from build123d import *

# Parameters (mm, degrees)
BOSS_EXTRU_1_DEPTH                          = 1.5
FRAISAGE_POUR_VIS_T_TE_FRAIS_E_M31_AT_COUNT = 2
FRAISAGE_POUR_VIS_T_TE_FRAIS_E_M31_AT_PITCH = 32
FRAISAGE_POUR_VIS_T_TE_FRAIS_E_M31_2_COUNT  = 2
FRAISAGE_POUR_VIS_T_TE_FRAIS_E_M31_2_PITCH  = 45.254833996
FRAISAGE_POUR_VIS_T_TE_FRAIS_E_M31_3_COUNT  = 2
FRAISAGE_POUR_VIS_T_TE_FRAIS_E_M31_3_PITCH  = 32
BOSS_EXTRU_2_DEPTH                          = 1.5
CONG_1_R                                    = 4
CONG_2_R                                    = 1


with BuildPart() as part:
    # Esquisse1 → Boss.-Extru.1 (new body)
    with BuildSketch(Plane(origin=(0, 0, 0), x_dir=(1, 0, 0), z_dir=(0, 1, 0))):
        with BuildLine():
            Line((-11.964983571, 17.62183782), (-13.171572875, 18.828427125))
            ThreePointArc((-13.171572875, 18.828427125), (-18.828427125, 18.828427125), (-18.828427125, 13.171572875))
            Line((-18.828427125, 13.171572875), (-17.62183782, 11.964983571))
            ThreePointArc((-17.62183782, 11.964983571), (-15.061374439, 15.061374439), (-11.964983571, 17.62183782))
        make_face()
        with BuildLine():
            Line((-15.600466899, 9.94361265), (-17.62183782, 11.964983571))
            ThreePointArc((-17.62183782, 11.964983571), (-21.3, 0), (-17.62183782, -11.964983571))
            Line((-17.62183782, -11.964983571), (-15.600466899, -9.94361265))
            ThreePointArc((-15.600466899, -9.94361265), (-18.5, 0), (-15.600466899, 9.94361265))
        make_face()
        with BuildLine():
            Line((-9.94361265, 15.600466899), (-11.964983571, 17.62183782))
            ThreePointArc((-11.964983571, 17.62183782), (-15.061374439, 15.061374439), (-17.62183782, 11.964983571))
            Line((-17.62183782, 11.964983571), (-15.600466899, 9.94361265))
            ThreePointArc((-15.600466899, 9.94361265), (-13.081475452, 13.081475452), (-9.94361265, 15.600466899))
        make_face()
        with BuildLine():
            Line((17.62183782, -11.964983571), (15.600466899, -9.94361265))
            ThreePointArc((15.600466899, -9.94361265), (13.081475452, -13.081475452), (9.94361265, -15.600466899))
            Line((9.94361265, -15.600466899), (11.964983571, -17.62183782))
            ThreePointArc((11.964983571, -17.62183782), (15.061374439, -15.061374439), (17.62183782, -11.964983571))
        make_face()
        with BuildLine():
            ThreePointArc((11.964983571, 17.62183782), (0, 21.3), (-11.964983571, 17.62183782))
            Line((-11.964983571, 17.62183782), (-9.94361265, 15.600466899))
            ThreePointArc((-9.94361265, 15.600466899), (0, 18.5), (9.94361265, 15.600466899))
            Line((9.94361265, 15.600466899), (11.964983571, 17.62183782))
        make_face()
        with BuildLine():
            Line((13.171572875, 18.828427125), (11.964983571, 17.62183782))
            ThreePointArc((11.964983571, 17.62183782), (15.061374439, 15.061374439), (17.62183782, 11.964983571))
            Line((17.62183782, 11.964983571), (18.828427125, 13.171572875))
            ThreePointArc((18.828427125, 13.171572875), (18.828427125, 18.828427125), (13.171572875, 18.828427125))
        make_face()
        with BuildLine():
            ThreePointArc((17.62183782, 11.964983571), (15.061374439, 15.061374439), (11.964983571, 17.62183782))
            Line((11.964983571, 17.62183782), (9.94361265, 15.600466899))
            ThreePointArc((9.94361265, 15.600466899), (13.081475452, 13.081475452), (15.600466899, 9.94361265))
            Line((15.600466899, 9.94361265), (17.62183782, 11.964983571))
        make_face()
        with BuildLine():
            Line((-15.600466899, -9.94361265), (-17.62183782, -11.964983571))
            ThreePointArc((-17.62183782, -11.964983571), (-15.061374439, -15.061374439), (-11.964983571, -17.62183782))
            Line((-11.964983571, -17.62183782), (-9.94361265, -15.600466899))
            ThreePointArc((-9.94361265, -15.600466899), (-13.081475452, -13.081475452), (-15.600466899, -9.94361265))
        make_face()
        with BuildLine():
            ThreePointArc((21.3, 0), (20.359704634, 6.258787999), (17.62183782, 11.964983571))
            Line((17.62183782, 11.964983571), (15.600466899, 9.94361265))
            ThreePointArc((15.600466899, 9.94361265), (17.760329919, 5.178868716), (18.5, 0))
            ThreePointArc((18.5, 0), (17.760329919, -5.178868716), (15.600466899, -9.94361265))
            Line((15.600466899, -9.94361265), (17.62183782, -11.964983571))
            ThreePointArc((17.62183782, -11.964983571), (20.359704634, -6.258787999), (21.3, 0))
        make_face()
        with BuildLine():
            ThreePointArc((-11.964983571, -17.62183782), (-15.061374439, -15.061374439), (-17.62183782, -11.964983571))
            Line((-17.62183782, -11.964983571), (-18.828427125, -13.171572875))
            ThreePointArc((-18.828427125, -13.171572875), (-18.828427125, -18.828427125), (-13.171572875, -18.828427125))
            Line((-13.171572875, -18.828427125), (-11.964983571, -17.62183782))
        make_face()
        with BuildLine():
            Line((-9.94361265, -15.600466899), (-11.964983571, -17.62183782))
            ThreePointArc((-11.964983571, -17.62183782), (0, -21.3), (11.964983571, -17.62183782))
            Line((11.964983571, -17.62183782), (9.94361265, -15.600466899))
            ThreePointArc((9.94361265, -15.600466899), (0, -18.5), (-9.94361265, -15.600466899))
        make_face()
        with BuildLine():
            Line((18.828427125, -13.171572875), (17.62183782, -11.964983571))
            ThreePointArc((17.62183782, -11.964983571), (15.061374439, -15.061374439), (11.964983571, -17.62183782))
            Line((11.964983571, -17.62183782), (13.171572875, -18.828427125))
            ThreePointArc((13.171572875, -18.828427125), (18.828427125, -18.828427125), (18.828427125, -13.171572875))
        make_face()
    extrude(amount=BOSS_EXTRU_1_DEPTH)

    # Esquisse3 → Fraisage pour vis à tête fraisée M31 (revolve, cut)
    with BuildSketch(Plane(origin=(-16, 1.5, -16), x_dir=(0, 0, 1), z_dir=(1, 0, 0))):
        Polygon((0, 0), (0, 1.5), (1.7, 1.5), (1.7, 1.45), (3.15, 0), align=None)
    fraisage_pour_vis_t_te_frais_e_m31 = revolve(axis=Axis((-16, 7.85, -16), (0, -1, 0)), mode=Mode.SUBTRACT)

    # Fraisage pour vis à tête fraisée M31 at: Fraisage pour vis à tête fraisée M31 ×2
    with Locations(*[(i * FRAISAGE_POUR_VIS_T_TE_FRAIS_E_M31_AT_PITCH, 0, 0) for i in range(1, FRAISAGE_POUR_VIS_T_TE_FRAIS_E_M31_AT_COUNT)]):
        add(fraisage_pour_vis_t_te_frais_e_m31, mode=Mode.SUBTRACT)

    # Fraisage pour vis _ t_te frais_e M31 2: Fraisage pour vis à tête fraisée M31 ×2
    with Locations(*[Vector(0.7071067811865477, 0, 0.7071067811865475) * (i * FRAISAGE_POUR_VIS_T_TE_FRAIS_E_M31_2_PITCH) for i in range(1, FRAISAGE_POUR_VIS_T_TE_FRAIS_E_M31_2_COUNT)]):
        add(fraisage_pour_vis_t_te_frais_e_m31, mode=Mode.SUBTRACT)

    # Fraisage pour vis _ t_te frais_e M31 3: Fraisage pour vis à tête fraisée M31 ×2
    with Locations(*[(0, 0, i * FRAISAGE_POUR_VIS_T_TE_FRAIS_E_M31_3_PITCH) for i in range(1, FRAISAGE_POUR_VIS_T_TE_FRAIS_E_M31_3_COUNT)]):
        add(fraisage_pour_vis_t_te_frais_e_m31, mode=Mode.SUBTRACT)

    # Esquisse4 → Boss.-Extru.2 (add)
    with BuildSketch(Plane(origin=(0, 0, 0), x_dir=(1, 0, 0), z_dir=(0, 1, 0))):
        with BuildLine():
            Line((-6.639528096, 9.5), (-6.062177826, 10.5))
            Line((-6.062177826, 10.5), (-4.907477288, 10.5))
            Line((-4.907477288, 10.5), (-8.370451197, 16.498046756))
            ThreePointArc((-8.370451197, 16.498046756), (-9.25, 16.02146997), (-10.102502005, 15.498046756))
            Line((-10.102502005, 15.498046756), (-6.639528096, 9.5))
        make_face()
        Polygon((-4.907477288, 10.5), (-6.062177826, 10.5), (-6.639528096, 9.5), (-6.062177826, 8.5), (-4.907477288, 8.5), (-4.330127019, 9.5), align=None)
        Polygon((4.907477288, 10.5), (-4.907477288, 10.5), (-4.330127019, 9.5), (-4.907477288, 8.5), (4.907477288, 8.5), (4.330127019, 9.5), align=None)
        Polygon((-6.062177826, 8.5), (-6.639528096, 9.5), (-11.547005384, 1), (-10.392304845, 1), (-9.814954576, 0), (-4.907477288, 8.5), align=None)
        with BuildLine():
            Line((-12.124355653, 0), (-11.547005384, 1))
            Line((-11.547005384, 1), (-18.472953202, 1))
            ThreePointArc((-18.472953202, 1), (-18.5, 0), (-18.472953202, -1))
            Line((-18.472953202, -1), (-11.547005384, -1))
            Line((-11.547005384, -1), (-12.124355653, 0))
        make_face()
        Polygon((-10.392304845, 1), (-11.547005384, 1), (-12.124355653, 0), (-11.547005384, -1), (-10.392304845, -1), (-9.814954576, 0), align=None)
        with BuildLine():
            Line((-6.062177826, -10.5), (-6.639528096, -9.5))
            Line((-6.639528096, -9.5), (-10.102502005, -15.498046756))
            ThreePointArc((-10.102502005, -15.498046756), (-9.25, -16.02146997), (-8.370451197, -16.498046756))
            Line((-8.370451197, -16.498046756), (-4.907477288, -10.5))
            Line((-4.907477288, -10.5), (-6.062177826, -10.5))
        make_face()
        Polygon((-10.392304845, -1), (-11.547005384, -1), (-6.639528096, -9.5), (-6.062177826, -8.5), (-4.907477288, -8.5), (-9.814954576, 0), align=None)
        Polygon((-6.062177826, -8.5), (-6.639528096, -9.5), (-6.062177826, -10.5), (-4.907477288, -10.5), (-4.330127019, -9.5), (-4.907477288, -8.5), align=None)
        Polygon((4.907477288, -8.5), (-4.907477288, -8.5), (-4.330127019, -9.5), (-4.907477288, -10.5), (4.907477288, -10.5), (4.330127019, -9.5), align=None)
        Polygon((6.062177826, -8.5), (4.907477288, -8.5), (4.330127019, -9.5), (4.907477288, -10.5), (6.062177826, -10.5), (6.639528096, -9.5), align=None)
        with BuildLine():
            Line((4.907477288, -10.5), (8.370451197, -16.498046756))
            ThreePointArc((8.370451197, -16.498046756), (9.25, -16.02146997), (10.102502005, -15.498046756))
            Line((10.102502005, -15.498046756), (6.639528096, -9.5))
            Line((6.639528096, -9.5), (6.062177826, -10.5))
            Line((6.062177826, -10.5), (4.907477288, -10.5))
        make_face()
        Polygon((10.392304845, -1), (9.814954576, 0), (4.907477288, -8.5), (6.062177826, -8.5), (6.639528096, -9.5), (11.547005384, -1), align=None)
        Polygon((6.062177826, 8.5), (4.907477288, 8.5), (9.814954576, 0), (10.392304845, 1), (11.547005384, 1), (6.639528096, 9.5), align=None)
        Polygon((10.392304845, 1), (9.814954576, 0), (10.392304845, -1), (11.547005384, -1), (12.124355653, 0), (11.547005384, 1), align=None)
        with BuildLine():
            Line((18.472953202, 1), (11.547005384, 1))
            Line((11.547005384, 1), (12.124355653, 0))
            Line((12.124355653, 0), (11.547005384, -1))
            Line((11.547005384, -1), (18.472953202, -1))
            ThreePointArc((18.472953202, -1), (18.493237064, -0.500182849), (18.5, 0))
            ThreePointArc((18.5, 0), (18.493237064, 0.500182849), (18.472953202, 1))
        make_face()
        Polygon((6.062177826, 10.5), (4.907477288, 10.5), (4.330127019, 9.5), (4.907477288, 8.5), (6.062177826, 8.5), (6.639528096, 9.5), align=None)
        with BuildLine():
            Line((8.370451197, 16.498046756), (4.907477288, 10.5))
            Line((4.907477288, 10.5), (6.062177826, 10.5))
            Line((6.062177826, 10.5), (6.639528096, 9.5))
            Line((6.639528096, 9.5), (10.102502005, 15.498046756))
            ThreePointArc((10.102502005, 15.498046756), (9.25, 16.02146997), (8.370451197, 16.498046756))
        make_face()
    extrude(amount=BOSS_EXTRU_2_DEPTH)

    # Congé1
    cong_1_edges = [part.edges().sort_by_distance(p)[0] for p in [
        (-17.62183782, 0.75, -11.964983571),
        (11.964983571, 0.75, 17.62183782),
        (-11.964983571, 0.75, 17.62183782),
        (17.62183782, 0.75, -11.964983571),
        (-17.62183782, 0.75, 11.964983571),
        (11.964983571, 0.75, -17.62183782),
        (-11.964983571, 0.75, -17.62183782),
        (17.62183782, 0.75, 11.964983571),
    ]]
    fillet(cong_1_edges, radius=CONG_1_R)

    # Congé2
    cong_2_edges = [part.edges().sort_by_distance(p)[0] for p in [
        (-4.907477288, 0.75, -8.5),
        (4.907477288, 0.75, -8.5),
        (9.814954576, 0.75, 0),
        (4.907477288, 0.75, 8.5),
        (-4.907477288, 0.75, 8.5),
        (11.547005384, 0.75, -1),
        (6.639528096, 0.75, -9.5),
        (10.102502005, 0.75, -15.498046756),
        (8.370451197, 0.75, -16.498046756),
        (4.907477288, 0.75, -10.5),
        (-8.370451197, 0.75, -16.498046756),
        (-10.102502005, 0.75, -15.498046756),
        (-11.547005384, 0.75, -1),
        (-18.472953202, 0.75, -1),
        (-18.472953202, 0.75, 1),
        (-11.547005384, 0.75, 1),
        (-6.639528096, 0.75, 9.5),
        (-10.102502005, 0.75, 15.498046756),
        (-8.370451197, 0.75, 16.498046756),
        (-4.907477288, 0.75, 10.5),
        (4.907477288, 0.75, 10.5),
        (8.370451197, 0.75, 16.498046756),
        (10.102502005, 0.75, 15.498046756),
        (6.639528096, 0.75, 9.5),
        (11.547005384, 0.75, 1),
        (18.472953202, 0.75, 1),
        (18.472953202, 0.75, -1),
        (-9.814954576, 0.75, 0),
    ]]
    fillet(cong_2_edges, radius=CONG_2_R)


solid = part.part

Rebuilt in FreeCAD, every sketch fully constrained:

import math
import FreeCAD as App
import Part
import Sketcher

V = App.Vector
Q = App.Units.Quantity


def edges_at(feature, points):
    """Names of the edges that pass closest to the given points."""
    edges = feature.Shape.Edges
    near = lambda p: min(range(len(edges)), key=lambda i: edges[i].distToShape(Part.Vertex(*p))[0])
    return sorted({f"Edge{near(p) + 1}" for p in points})

doc = App.newDocument("Part")
body = doc.addObject("PartDesign::Body", "Body")

sketch1 = body.newObject("Sketcher::SketchObject", "Sketch")
sketch1.AttachmentSupport = (doc.getObject("XZ_Plane"), [""])
sketch1.MapMode = "FlatFace"
sketch1.addGeometry(Part.LineSegment(V(17.6, -12, 0), V(18.8, -13.2, 0)), False)
sketch1.addGeometry(Part.ArcOfCircle(Part.Circle(V(16, -16, 0), V(0, 0, 1), 4), math.radians(-135), math.radians(45)), False)
sketch1.addGeometry(Part.LineSegment(V(13.2, -18.8, 0), V(12, -17.6, 0)), False)
sketch1.addGeometry(Part.ArcOfCircle(Part.Circle(V(0, 0, 0), V(0, 0, 1), 21.3), math.radians(-124), math.radians(-56)), False)
sketch1.addGeometry(Part.LineSegment(V(-12, -17.6, 0), V(-13.2, -18.8, 0)), False)
sketch1.addGeometry(Part.ArcOfCircle(Part.Circle(V(-16, -16, 0), V(0, 0, 1), 4), math.radians(135), math.radians(315)), False)
sketch1.addGeometry(Part.LineSegment(V(-18.8, -13.2, 0), V(-17.6, -12, 0)), False)
sketch1.addGeometry(Part.ArcOfCircle(Part.Circle(V(0, 0, 0), V(0, 0, 1), 21.3), math.radians(146), math.radians(214)), False)
sketch1.addGeometry(Part.LineSegment(V(-17.6, 12, 0), V(-18.8, 13.2, 0)), False)
sketch1.addGeometry(Part.ArcOfCircle(Part.Circle(V(-16, 16, 0), V(0, 0, 1), 4), math.radians(45), math.radians(225)), False)
sketch1.addGeometry(Part.LineSegment(V(-13.2, 18.8, 0), V(-12, 17.6, 0)), False)
sketch1.addGeometry(Part.ArcOfCircle(Part.Circle(V(0, 0, 0), V(0, 0, 1), 21.3), math.radians(56), math.radians(124)), False)
sketch1.addGeometry(Part.LineSegment(V(12, 17.6, 0), V(13.2, 18.8, 0)), False)
sketch1.addGeometry(Part.ArcOfCircle(Part.Circle(V(16, 16, 0), V(0, 0, 1), 4), math.radians(-45), math.radians(135)), False)
sketch1.addGeometry(Part.LineSegment(V(18.8, 13.2, 0), V(17.6, 12, 0)), False)
sketch1.addGeometry(Part.ArcOfCircle(Part.Circle(V(0, 0, 0), V(0, 0, 1), 21.3), math.radians(0), math.radians(34)), False)
sketch1.addGeometry(Part.ArcOfCircle(Part.Circle(V(0, 0, 0), V(0, 0, 1), 21.3), math.radians(-34), math.radians(0)), False)
sketch1.addGeometry(Part.ArcOfCircle(Part.Circle(V(0, 0, 0), V(0, 0, 1), 18.5), math.radians(0), math.radians(33)), False)
sketch1.addGeometry(Part.ArcOfCircle(Part.Circle(V(0, 0, 0), V(0, 0, 1), 18.5), math.radians(33), math.radians(57)), False)
sketch1.addGeometry(Part.ArcOfCircle(Part.Circle(V(0, 0, 0), V(0, 0, 1), 18.5), math.radians(57), math.radians(123)), False)
sketch1.addGeometry(Part.ArcOfCircle(Part.Circle(V(0, 0, 0), V(0, 0, 1), 18.5), math.radians(123), math.radians(147)), False)
sketch1.addGeometry(Part.ArcOfCircle(Part.Circle(V(0, 0, 0), V(0, 0, 1), 18.5), math.radians(147), math.radians(213)), False)
sketch1.addGeometry(Part.ArcOfCircle(Part.Circle(V(0, 0, 0), V(0, 0, 1), 18.5), math.radians(-147), math.radians(-123)), False)
sketch1.addGeometry(Part.ArcOfCircle(Part.Circle(V(0, 0, 0), V(0, 0, 1), 18.5), math.radians(-123), math.radians(-57)), False)
sketch1.addGeometry(Part.ArcOfCircle(Part.Circle(V(0, 0, 0), V(0, 0, 1), 18.5), math.radians(-57), math.radians(-33)), False)
sketch1.addGeometry(Part.ArcOfCircle(Part.Circle(V(0, 0, 0), V(0, 0, 1), 18.5), math.radians(-33), math.radians(0)), False)
sketch1.addConstraint(Sketcher.Constraint("Tangent", 0, 2, 1, 2))
sketch1.addConstraint(Sketcher.Constraint("Tangent", 1, 1, 2, 1))
sketch1.addConstraint(Sketcher.Constraint("Coincident", 2, 2, 3, 2))
sketch1.addConstraint(Sketcher.Constraint("Coincident", 3, 1, 4, 1))
sketch1.addConstraint(Sketcher.Constraint("Tangent", 4, 2, 5, 2))
sketch1.addConstraint(Sketcher.Constraint("Tangent", 5, 1, 6, 1))
sketch1.addConstraint(Sketcher.Constraint("Coincident", 6, 2, 7, 2))
sketch1.addConstraint(Sketcher.Constraint("Coincident", 7, 1, 8, 1))
sketch1.addConstraint(Sketcher.Constraint("Tangent", 8, 2, 9, 2))
sketch1.addConstraint(Sketcher.Constraint("Tangent", 9, 1, 10, 1))
sketch1.addConstraint(Sketcher.Constraint("Coincident", 10, 2, 11, 2))
sketch1.addConstraint(Sketcher.Constraint("Coincident", 11, 1, 12, 1))
sketch1.addConstraint(Sketcher.Constraint("Tangent", 12, 2, 13, 2))
sketch1.addConstraint(Sketcher.Constraint("Tangent", 13, 1, 14, 1))
sketch1.addConstraint(Sketcher.Constraint("Coincident", 14, 2, 15, 2))
sketch1.addConstraint(Sketcher.Constraint("Tangent", 15, 1, 16, 2))
sketch1.addConstraint(Sketcher.Constraint("Coincident", 16, 1, 0, 1))
sketch1.addConstraint(Sketcher.Constraint("Tangent", 17, 2, 18, 1))
sketch1.addConstraint(Sketcher.Constraint("Tangent", 18, 2, 19, 1))
sketch1.addConstraint(Sketcher.Constraint("Tangent", 19, 2, 20, 1))
sketch1.addConstraint(Sketcher.Constraint("Tangent", 20, 2, 21, 1))
sketch1.addConstraint(Sketcher.Constraint("Tangent", 21, 2, 22, 1))
sketch1.addConstraint(Sketcher.Constraint("Tangent", 22, 2, 23, 1))
sketch1.addConstraint(Sketcher.Constraint("Tangent", 23, 2, 24, 1))
sketch1.addConstraint(Sketcher.Constraint("Tangent", 24, 2, 25, 1))
sketch1.addConstraint(Sketcher.Constraint("Tangent", 25, 2, 17, 1))
sketch1.addConstraint(Sketcher.Constraint("Coincident", 3, 3, -1, 1))
sketch1.addConstraint(Sketcher.Constraint("Coincident", 7, 3, -1, 1))
sketch1.addConstraint(Sketcher.Constraint("Coincident", 11, 3, -1, 1))
sketch1.addConstraint(Sketcher.Constraint("Coincident", 15, 3, -1, 1))
sketch1.addConstraint(Sketcher.Constraint("Coincident", 17, 3, -1, 1))
sketch1.addConstraint(Sketcher.Constraint("Coincident", 19, 3, -1, 1))
sketch1.addConstraint(Sketcher.Constraint("Coincident", 21, 3, -1, 1))
sketch1.addConstraint(Sketcher.Constraint("Coincident", 23, 3, -1, 1))
sketch1.addConstraint(Sketcher.Constraint("Equal", 1, 5))
sketch1.addConstraint(Sketcher.Constraint("Equal", 3, 7))
sketch1.addConstraint(Sketcher.Constraint("Equal", 5, 9))
sketch1.addConstraint(Sketcher.Constraint("Equal", 7, 11))
sketch1.addConstraint(Sketcher.Constraint("Equal", 9, 13))
sketch1.addConstraint(Sketcher.Constraint("Equal", 11, 15))
sketch1.addConstraint(Sketcher.Constraint("Equal", 15, 16))
sketch1.addConstraint(Sketcher.Constraint("Symmetric", 1, 3, 9, 3, -1, 1))
sketch1.addConstraint(Sketcher.Constraint("Symmetric", 5, 3, 13, 3, -1, 1))
sketch1.addConstraint(Sketcher.Constraint("Symmetric", 1, 3, 5, 3, -2))
sketch1.addConstraint(Sketcher.Constraint("PointOnObject", 15, 1, -1))
sketch1.addConstraint(Sketcher.Constraint("PointOnObject", 25, 2, -1))
sketch1.addConstraint(Sketcher.Constraint("Parallel", 0, 2))
sketch1.addConstraint(Sketcher.Constraint("Perpendicular", 2, 4))
sketch1.addConstraint(Sketcher.Constraint("Parallel", 4, 6))
sketch1.addConstraint(Sketcher.Constraint("Perpendicular", 6, 8))
sketch1.addConstraint(Sketcher.Constraint("Parallel", 8, 10))
sketch1.addConstraint(Sketcher.Constraint("Perpendicular", 10, 12))
sketch1.addConstraint(Sketcher.Constraint("Parallel", 12, 14))
sketch1.addConstraint(Sketcher.Constraint("Horizontal", 2, 2, 3, 1))
sketch1.addConstraint(Sketcher.Constraint("Horizontal", 18, 2, 19, 2))
sketch1.addConstraint(Sketcher.Constraint("Horizontal", 17, 2, 20, 2))
sketch1.addConstraint(Sketcher.Constraint("Horizontal", 22, 2, 23, 2))
sketch1.addConstraint(Sketcher.Constraint("Horizontal", 21, 2, 24, 2))
sketch1.addConstraint(Sketcher.Constraint("Vertical", 20, 2, 21, 2))
sketch1.addConstraint(Sketcher.Constraint("Vertical", 19, 2, 22, 2))
sketch1.addConstraint(Sketcher.Constraint("Equal", 0, 2))
sketch1.addConstraint(Sketcher.Constraint("Radius", 1, Q("4 mm")))
sketch1.addConstraint(Sketcher.Constraint("Radius", 3, Q("21.3 mm")))
sketch1.addConstraint(Sketcher.Constraint("Radius", 17, Q("18.5 mm")))
sketch1.addConstraint(Sketcher.Constraint("DistanceX", -1, 1, 1, 3, Q("16 mm")))
sketch1.addConstraint(Sketcher.Constraint("DistanceX", 17, 2, 14, 2, Q("2.021371 mm")))
sketch1.addConstraint(Sketcher.Constraint("DistanceX", 18, 2, 11, 1, Q("2.021371 mm")))
pad1 = body.newObject("PartDesign::Pad", "Pad")
pad1.Profile = sketch1
pad1.Length = 1.5
pad1.Reversed = True

sketch2 = body.newObject("Sketcher::SketchObject", "Sketch001")
sketch2.AttachmentSupport = (doc.getObject("YZ_Plane"), [""])
sketch2.MapMode = "FlatFace"
sketch2.AttachmentOffset = App.Placement(V(0, 0, -16), App.Rotation())
sketch2.addGeometry(Part.LineSegment(V(0, -16, 0), V(1.5, -16, 0)), False)
sketch2.addGeometry(Part.LineSegment(V(1.5, -16, 0), V(1.5, -12.85, 0)), False)
sketch2.addGeometry(Part.LineSegment(V(1.5, -12.85, 0), V(0.05, -14.3, 0)), False)
sketch2.addGeometry(Part.LineSegment(V(0.05, -14.3, 0), V(0, -14.3, 0)), False)
sketch2.addGeometry(Part.LineSegment(V(0, -14.3, 0), V(0, -16, 0)), False)
sketch2.addGeometry(Part.LineSegment(V(1.5, -16, 0), V(0, -16, 0)), True)
sketch2.addConstraint(Sketcher.Constraint("Coincident", 0, 2, 1, 1))
sketch2.addConstraint(Sketcher.Constraint("Coincident", 1, 2, 2, 1))
sketch2.addConstraint(Sketcher.Constraint("Coincident", 2, 2, 3, 1))
sketch2.addConstraint(Sketcher.Constraint("Coincident", 3, 2, 4, 1))
sketch2.addConstraint(Sketcher.Constraint("Coincident", 4, 2, 0, 1))
sketch2.addConstraint(Sketcher.Constraint("Horizontal", 0))
sketch2.addConstraint(Sketcher.Constraint("Vertical", 1))
sketch2.addConstraint(Sketcher.Constraint("Horizontal", 3))
sketch2.addConstraint(Sketcher.Constraint("Vertical", 4))
sketch2.addConstraint(Sketcher.Constraint("Horizontal", 5))
sketch2.addConstraint(Sketcher.Constraint("Coincident", 5, 1, 0, 2))
sketch2.addConstraint(Sketcher.Constraint("PointOnObject", 3, 2, -2))
sketch2.addConstraint(Sketcher.Constraint("PointOnObject", 5, 2, -2))
sketch2.addConstraint(Sketcher.Constraint("Angle", 2, Q("-135 deg")))
sketch2.addConstraint(Sketcher.Constraint("DistanceX", 0, 1, 0, 2, Q("1.5 mm")))
sketch2.addConstraint(Sketcher.Constraint("DistanceY", 4, 2, 4, 1, Q("1.7 mm")))
sketch2.addConstraint(Sketcher.Constraint("DistanceY", 0, 2, -1, 1, Q("16 mm")))
sketch2.addConstraint(Sketcher.Constraint("DistanceX", 3, 2, 3, 1, Q("0.05 mm")))
groove = body.newObject("PartDesign::Groove", "Groove")
groove.Profile = sketch2
groove.ReferenceAxis = (sketch2, ["Axis0"])
groove.Angle = 360
doc.recompute()

linearpattern = body.newObject("PartDesign::LinearPattern", "LinearPattern")
linearpattern.Originals = [groove]
linearpattern.Direction = (doc.getObject("X_Axis"), [""])
linearpattern.Mode = "offset"
linearpattern.Offset = 32
linearpattern.Occurrences = 2
body.Tip = linearpattern
doc.recompute()

datumline = body.newObject("PartDesign::Line", "DatumLine")
datumline.Placement = App.Placement(V(0, 0, 0), App.Rotation(V(0, 0, 1), V(0.707106781, 0, 0.707106781)))
linearpattern2 = body.newObject("PartDesign::LinearPattern", "LinearPattern001")
linearpattern2.Originals = [groove]
linearpattern2.Direction = (datumline, [""])
linearpattern2.Mode = "offset"
linearpattern2.Offset = 45.254834
linearpattern2.Occurrences = 2
body.Tip = linearpattern2
doc.recompute()

linearpattern3 = body.newObject("PartDesign::LinearPattern", "LinearPattern002")
linearpattern3.Originals = [groove]
linearpattern3.Direction = (doc.getObject("Z_Axis"), [""])
linearpattern3.Mode = "offset"
linearpattern3.Offset = 32
linearpattern3.Occurrences = 2
body.Tip = linearpattern3

sketch3 = body.newObject("Sketcher::SketchObject", "Sketch002")
sketch3.AttachmentSupport = (doc.getObject("XZ_Plane"), [""])
sketch3.MapMode = "FlatFace"
sketch3.addGeometry(Part.LineSegment(V(11.5, -1, 0), V(6.6, -9.5, 0)), False)
sketch3.addGeometry(Part.LineSegment(V(6.6, -9.5, 0), V(10.1, -15.5, 0)), False)
sketch3.addGeometry(Part.ArcOfCircle(Part.Circle(V(0, 0, 0), V(0, 0, 1), 18.5), math.radians(-63.1), math.radians(-56.9)), False)
sketch3.addGeometry(Part.LineSegment(V(8.4, -16.5, 0), V(4.9, -10.5, 0)), False)
sketch3.addGeometry(Part.LineSegment(V(4.9, -10.5, 0), V(-4.9, -10.5, 0)), False)
sketch3.addGeometry(Part.LineSegment(V(-4.9, -10.5, 0), V(-8.4, -16.5, 0)), False)
sketch3.addGeometry(Part.ArcOfCircle(Part.Circle(V(0, 0, 0), V(0, 0, 1), 18.5), math.radians(-123.1), math.radians(-116.9)), False)
sketch3.addGeometry(Part.LineSegment(V(-10.1, -15.5, 0), V(-6.6, -9.5, 0)), False)
sketch3.addGeometry(Part.LineSegment(V(-6.6, -9.5, 0), V(-11.5, -1, 0)), False)
sketch3.addGeometry(Part.LineSegment(V(-11.5, -1, 0), V(-18.5, -1, 0)), False)
sketch3.addGeometry(Part.ArcOfCircle(Part.Circle(V(0, 0, 0), V(0, 0, 1), 18.5), math.radians(176.9), math.radians(183.1)), False)
sketch3.addGeometry(Part.LineSegment(V(-18.5, 1, 0), V(-11.5, 1, 0)), False)
sketch3.addGeometry(Part.LineSegment(V(-11.5, 1, 0), V(-6.6, 9.5, 0)), False)
sketch3.addGeometry(Part.LineSegment(V(-6.6, 9.5, 0), V(-10.1, 15.5, 0)), False)
sketch3.addGeometry(Part.ArcOfCircle(Part.Circle(V(0, 0, 0), V(0, 0, 1), 18.5), math.radians(116.9), math.radians(123.1)), False)
sketch3.addGeometry(Part.LineSegment(V(-8.4, 16.5, 0), V(-4.9, 10.5, 0)), False)
sketch3.addGeometry(Part.LineSegment(V(-4.9, 10.5, 0), V(4.9, 10.5, 0)), False)
sketch3.addGeometry(Part.LineSegment(V(4.9, 10.5, 0), V(8.4, 16.5, 0)), False)
sketch3.addGeometry(Part.ArcOfCircle(Part.Circle(V(0, 0, 0), V(0, 0, 1), 18.5), math.radians(56.9), math.radians(63.1)), False)
sketch3.addGeometry(Part.LineSegment(V(10.1, 15.5, 0), V(6.6, 9.5, 0)), False)
sketch3.addGeometry(Part.LineSegment(V(6.6, 9.5, 0), V(11.5, 1, 0)), False)
sketch3.addGeometry(Part.LineSegment(V(11.5, 1, 0), V(18.5, 1, 0)), False)
sketch3.addGeometry(Part.ArcOfCircle(Part.Circle(V(0, 0, 0), V(0, 0, 1), 18.5), math.radians(0), math.radians(3.1)), False)
sketch3.addGeometry(Part.ArcOfCircle(Part.Circle(V(0, 0, 0), V(0, 0, 1), 18.5), math.radians(-3.1), math.radians(0)), False)
sketch3.addGeometry(Part.LineSegment(V(18.5, -1, 0), V(11.5, -1, 0)), False)
sketch3.addGeometry(Part.LineSegment(V(-4.9, -8.5, 0), V(4.9, -8.5, 0)), False)
sketch3.addGeometry(Part.LineSegment(V(4.9, -8.5, 0), V(9.8, 0, 0)), False)
sketch3.addGeometry(Part.LineSegment(V(9.8, 0, 0), V(4.9, 8.5, 0)), False)
sketch3.addGeometry(Part.LineSegment(V(4.9, 8.5, 0), V(-4.9, 8.5, 0)), False)
sketch3.addGeometry(Part.LineSegment(V(-4.9, 8.5, 0), V(-9.8, 0, 0)), False)
sketch3.addGeometry(Part.LineSegment(V(-9.8, 0, 0), V(-4.9, -8.5, 0)), False)
sketch3.addConstraint(Sketcher.Constraint("Coincident", 0, 2, 1, 1))
sketch3.addConstraint(Sketcher.Constraint("Coincident", 1, 2, 2, 2))
sketch3.addConstraint(Sketcher.Constraint("Coincident", 2, 1, 3, 1))
sketch3.addConstraint(Sketcher.Constraint("Coincident", 3, 2, 4, 1))
sketch3.addConstraint(Sketcher.Constraint("Coincident", 4, 2, 5, 1))
sketch3.addConstraint(Sketcher.Constraint("Coincident", 5, 2, 6, 2))
sketch3.addConstraint(Sketcher.Constraint("Coincident", 6, 1, 7, 1))
sketch3.addConstraint(Sketcher.Constraint("Coincident", 7, 2, 8, 1))
sketch3.addConstraint(Sketcher.Constraint("Coincident", 8, 2, 9, 1))
sketch3.addConstraint(Sketcher.Constraint("Coincident", 9, 2, 10, 2))
sketch3.addConstraint(Sketcher.Constraint("Coincident", 10, 1, 11, 1))
sketch3.addConstraint(Sketcher.Constraint("Coincident", 11, 2, 12, 1))
sketch3.addConstraint(Sketcher.Constraint("Coincident", 12, 2, 13, 1))
sketch3.addConstraint(Sketcher.Constraint("Coincident", 13, 2, 14, 2))
sketch3.addConstraint(Sketcher.Constraint("Coincident", 14, 1, 15, 1))
sketch3.addConstraint(Sketcher.Constraint("Coincident", 15, 2, 16, 1))
sketch3.addConstraint(Sketcher.Constraint("Coincident", 16, 2, 17, 1))
sketch3.addConstraint(Sketcher.Constraint("Coincident", 17, 2, 18, 2))
sketch3.addConstraint(Sketcher.Constraint("Coincident", 18, 1, 19, 1))
sketch3.addConstraint(Sketcher.Constraint("Coincident", 19, 2, 20, 1))
sketch3.addConstraint(Sketcher.Constraint("Coincident", 20, 2, 21, 1))
sketch3.addConstraint(Sketcher.Constraint("Coincident", 21, 2, 22, 2))
sketch3.addConstraint(Sketcher.Constraint("Tangent", 22, 1, 23, 2))
sketch3.addConstraint(Sketcher.Constraint("Coincident", 23, 1, 24, 1))
sketch3.addConstraint(Sketcher.Constraint("Coincident", 24, 2, 0, 1))
sketch3.addConstraint(Sketcher.Constraint("Coincident", 25, 2, 26, 1))
sketch3.addConstraint(Sketcher.Constraint("Coincident", 26, 2, 27, 1))
sketch3.addConstraint(Sketcher.Constraint("Coincident", 27, 2, 28, 1))
sketch3.addConstraint(Sketcher.Constraint("Coincident", 28, 2, 29, 1))
sketch3.addConstraint(Sketcher.Constraint("Coincident", 29, 2, 30, 1))
sketch3.addConstraint(Sketcher.Constraint("Coincident", 30, 2, 25, 1))
sketch3.addConstraint(Sketcher.Constraint("Horizontal", 4))
sketch3.addConstraint(Sketcher.Constraint("Horizontal", 9))
sketch3.addConstraint(Sketcher.Constraint("Horizontal", 11))
sketch3.addConstraint(Sketcher.Constraint("Horizontal", 16))
sketch3.addConstraint(Sketcher.Constraint("Horizontal", 21))
sketch3.addConstraint(Sketcher.Constraint("Horizontal", 24))
sketch3.addConstraint(Sketcher.Constraint("Horizontal", 25))
sketch3.addConstraint(Sketcher.Constraint("Horizontal", 28))
sketch3.addConstraint(Sketcher.Constraint("Coincident", 2, 3, -1, 1))
sketch3.addConstraint(Sketcher.Constraint("Coincident", 6, 3, -1, 1))
sketch3.addConstraint(Sketcher.Constraint("Coincident", 10, 3, -1, 1))
sketch3.addConstraint(Sketcher.Constraint("Coincident", 14, 3, -1, 1))
sketch3.addConstraint(Sketcher.Constraint("Coincident", 18, 3, -1, 1))
sketch3.addConstraint(Sketcher.Constraint("Coincident", 22, 3, -1, 1))
sketch3.addConstraint(Sketcher.Constraint("Equal", 2, 6))
sketch3.addConstraint(Sketcher.Constraint("Equal", 6, 10))
sketch3.addConstraint(Sketcher.Constraint("Equal", 10, 14))
sketch3.addConstraint(Sketcher.Constraint("Equal", 14, 18))
sketch3.addConstraint(Sketcher.Constraint("Equal", 18, 22))
sketch3.addConstraint(Sketcher.Constraint("Equal", 22, 23))
sketch3.addConstraint(Sketcher.Constraint("Symmetric", 0, 2, 12, 2, -1, 1))
sketch3.addConstraint(Sketcher.Constraint("Symmetric", 3, 2, 15, 2, -1, 1))
sketch3.addConstraint(Sketcher.Constraint("Symmetric", 7, 2, 19, 2, -1, 1))
sketch3.addConstraint(Sketcher.Constraint("Symmetric", 8, 2, 20, 2, -1, 1))
sketch3.addConstraint(Sketcher.Constraint("Symmetric", 11, 2, 24, 2, -1, 1))
sketch3.addConstraint(Sketcher.Constraint("Symmetric", 25, 2, 28, 2, -1, 1))
sketch3.addConstraint(Sketcher.Constraint("Symmetric", 26, 2, 29, 2, -1, 1))
sketch3.addConstraint(Sketcher.Constraint("Symmetric", 0, 2, 7, 2, -2))
sketch3.addConstraint(Sketcher.Constraint("Symmetric", 11, 2, 20, 2, -2))
sketch3.addConstraint(Sketcher.Constraint("PointOnObject", 22, 1, -1))
sketch3.addConstraint(Sketcher.Constraint("PointOnObject", 26, 2, -1))
sketch3.addConstraint(Sketcher.Constraint("Parallel", 1, 3))
sketch3.addConstraint(Sketcher.Constraint("Parallel", 0, 5))
sketch3.addConstraint(Sketcher.Constraint("Parallel", 5, 7))
sketch3.addConstraint(Sketcher.Constraint("Parallel", 3, 8))
sketch3.addConstraint(Sketcher.Constraint("Parallel", 8, 13))
sketch3.addConstraint(Sketcher.Constraint("Parallel", 13, 15))
sketch3.addConstraint(Sketcher.Constraint("Parallel", 12, 17))
sketch3.addConstraint(Sketcher.Constraint("Parallel", 17, 19))
sketch3.addConstraint(Sketcher.Constraint("Parallel", 19, 26))
sketch3.addConstraint(Sketcher.Constraint("Parallel", 20, 27))
sketch3.addConstraint(Sketcher.Constraint("Parallel", 27, 30))
sketch3.addConstraint(Sketcher.Constraint("Horizontal", 2, 1, 5, 2))
sketch3.addConstraint(Sketcher.Constraint("Horizontal", 14, 1, 17, 2))
sketch3.addConstraint(Sketcher.Constraint("Vertical", 16, 2, 25, 2))
sketch3.addConstraint(Sketcher.Constraint("Equal", 1, 3))
sketch3.addConstraint(Sketcher.Constraint("Equal", 20, 26))
sketch3.addConstraint(Sketcher.Constraint("Radius", 2, Q("18.5 mm")))
sketch3.addConstraint(Sketcher.Constraint("Angle", 0, Q("-120 deg")))
sketch3.addConstraint(Sketcher.Constraint("DistanceY", 8, 2, -1, 1, Q("1 mm")))
sketch3.addConstraint(Sketcher.Constraint("DistanceY", 2, 1, 1, 2, Q("1 mm")))
sketch3.addConstraint(Sketcher.Constraint("DistanceY", 0, 2, -1, 1, Q("9.5 mm")))
sketch3.addConstraint(Sketcher.Constraint("DistanceX", 26, 2, 21, 2, Q("8.657999 mm")))
pad2 = body.newObject("PartDesign::Pad", "Pad001")
pad2.Profile = sketch3
pad2.Length = 1.5
pad2.Reversed = True
doc.recompute()

fillet = body.newObject("PartDesign::Fillet", "Fillet")
fillet.Base = (pad2, edges_at(pad2, [
    (-17.622, 0.75, -11.965),
    (11.965, 0.75, 17.622),
    (-11.965, 0.75, 17.622),
    (17.622, 0.75, -11.965),
    (-17.622, 0.75, 11.965),
    (11.965, 0.75, -17.622),
    (-11.965, 0.75, -17.622),
    (17.622, 0.75, 11.965),
]))
fillet.Radius = 4
doc.recompute()

fillet2 = body.newObject("PartDesign::Fillet", "Fillet001")
fillet2.Base = (fillet, edges_at(fillet, [
    (-4.907, 0.75, -8.5),
    (4.907, 0.75, -8.5),
    (9.815, 0.75, 0),
    (4.907, 0.75, 8.5),
    (-4.907, 0.75, 8.5),
    (11.547, 0.75, -1),
    (6.64, 0.75, -9.5),
    (10.103, 0.75, -15.498),
    (8.37, 0.75, -16.498),
    (4.907, 0.75, -10.5),
    (-8.37, 0.75, -16.498),
    (-10.103, 0.75, -15.498),
    (-11.547, 0.75, -1),
    (-18.473, 0.75, -1),
    (-18.473, 0.75, 1),
    (-11.547, 0.75, 1),
    (-6.64, 0.75, 9.5),
    (-10.103, 0.75, 15.498),
    (-8.37, 0.75, 16.498),
    (-4.907, 0.75, 10.5),
    (4.907, 0.75, 10.5),
    (8.37, 0.75, 16.498),
    (10.103, 0.75, 15.498),
    (6.64, 0.75, 9.5),
    (11.547, 0.75, 1),
    (18.473, 0.75, 1),
    (18.473, 0.75, -1),
    (-9.815, 0.75, 0),
]))
fillet2.Radius = 1

doc.recompute()
